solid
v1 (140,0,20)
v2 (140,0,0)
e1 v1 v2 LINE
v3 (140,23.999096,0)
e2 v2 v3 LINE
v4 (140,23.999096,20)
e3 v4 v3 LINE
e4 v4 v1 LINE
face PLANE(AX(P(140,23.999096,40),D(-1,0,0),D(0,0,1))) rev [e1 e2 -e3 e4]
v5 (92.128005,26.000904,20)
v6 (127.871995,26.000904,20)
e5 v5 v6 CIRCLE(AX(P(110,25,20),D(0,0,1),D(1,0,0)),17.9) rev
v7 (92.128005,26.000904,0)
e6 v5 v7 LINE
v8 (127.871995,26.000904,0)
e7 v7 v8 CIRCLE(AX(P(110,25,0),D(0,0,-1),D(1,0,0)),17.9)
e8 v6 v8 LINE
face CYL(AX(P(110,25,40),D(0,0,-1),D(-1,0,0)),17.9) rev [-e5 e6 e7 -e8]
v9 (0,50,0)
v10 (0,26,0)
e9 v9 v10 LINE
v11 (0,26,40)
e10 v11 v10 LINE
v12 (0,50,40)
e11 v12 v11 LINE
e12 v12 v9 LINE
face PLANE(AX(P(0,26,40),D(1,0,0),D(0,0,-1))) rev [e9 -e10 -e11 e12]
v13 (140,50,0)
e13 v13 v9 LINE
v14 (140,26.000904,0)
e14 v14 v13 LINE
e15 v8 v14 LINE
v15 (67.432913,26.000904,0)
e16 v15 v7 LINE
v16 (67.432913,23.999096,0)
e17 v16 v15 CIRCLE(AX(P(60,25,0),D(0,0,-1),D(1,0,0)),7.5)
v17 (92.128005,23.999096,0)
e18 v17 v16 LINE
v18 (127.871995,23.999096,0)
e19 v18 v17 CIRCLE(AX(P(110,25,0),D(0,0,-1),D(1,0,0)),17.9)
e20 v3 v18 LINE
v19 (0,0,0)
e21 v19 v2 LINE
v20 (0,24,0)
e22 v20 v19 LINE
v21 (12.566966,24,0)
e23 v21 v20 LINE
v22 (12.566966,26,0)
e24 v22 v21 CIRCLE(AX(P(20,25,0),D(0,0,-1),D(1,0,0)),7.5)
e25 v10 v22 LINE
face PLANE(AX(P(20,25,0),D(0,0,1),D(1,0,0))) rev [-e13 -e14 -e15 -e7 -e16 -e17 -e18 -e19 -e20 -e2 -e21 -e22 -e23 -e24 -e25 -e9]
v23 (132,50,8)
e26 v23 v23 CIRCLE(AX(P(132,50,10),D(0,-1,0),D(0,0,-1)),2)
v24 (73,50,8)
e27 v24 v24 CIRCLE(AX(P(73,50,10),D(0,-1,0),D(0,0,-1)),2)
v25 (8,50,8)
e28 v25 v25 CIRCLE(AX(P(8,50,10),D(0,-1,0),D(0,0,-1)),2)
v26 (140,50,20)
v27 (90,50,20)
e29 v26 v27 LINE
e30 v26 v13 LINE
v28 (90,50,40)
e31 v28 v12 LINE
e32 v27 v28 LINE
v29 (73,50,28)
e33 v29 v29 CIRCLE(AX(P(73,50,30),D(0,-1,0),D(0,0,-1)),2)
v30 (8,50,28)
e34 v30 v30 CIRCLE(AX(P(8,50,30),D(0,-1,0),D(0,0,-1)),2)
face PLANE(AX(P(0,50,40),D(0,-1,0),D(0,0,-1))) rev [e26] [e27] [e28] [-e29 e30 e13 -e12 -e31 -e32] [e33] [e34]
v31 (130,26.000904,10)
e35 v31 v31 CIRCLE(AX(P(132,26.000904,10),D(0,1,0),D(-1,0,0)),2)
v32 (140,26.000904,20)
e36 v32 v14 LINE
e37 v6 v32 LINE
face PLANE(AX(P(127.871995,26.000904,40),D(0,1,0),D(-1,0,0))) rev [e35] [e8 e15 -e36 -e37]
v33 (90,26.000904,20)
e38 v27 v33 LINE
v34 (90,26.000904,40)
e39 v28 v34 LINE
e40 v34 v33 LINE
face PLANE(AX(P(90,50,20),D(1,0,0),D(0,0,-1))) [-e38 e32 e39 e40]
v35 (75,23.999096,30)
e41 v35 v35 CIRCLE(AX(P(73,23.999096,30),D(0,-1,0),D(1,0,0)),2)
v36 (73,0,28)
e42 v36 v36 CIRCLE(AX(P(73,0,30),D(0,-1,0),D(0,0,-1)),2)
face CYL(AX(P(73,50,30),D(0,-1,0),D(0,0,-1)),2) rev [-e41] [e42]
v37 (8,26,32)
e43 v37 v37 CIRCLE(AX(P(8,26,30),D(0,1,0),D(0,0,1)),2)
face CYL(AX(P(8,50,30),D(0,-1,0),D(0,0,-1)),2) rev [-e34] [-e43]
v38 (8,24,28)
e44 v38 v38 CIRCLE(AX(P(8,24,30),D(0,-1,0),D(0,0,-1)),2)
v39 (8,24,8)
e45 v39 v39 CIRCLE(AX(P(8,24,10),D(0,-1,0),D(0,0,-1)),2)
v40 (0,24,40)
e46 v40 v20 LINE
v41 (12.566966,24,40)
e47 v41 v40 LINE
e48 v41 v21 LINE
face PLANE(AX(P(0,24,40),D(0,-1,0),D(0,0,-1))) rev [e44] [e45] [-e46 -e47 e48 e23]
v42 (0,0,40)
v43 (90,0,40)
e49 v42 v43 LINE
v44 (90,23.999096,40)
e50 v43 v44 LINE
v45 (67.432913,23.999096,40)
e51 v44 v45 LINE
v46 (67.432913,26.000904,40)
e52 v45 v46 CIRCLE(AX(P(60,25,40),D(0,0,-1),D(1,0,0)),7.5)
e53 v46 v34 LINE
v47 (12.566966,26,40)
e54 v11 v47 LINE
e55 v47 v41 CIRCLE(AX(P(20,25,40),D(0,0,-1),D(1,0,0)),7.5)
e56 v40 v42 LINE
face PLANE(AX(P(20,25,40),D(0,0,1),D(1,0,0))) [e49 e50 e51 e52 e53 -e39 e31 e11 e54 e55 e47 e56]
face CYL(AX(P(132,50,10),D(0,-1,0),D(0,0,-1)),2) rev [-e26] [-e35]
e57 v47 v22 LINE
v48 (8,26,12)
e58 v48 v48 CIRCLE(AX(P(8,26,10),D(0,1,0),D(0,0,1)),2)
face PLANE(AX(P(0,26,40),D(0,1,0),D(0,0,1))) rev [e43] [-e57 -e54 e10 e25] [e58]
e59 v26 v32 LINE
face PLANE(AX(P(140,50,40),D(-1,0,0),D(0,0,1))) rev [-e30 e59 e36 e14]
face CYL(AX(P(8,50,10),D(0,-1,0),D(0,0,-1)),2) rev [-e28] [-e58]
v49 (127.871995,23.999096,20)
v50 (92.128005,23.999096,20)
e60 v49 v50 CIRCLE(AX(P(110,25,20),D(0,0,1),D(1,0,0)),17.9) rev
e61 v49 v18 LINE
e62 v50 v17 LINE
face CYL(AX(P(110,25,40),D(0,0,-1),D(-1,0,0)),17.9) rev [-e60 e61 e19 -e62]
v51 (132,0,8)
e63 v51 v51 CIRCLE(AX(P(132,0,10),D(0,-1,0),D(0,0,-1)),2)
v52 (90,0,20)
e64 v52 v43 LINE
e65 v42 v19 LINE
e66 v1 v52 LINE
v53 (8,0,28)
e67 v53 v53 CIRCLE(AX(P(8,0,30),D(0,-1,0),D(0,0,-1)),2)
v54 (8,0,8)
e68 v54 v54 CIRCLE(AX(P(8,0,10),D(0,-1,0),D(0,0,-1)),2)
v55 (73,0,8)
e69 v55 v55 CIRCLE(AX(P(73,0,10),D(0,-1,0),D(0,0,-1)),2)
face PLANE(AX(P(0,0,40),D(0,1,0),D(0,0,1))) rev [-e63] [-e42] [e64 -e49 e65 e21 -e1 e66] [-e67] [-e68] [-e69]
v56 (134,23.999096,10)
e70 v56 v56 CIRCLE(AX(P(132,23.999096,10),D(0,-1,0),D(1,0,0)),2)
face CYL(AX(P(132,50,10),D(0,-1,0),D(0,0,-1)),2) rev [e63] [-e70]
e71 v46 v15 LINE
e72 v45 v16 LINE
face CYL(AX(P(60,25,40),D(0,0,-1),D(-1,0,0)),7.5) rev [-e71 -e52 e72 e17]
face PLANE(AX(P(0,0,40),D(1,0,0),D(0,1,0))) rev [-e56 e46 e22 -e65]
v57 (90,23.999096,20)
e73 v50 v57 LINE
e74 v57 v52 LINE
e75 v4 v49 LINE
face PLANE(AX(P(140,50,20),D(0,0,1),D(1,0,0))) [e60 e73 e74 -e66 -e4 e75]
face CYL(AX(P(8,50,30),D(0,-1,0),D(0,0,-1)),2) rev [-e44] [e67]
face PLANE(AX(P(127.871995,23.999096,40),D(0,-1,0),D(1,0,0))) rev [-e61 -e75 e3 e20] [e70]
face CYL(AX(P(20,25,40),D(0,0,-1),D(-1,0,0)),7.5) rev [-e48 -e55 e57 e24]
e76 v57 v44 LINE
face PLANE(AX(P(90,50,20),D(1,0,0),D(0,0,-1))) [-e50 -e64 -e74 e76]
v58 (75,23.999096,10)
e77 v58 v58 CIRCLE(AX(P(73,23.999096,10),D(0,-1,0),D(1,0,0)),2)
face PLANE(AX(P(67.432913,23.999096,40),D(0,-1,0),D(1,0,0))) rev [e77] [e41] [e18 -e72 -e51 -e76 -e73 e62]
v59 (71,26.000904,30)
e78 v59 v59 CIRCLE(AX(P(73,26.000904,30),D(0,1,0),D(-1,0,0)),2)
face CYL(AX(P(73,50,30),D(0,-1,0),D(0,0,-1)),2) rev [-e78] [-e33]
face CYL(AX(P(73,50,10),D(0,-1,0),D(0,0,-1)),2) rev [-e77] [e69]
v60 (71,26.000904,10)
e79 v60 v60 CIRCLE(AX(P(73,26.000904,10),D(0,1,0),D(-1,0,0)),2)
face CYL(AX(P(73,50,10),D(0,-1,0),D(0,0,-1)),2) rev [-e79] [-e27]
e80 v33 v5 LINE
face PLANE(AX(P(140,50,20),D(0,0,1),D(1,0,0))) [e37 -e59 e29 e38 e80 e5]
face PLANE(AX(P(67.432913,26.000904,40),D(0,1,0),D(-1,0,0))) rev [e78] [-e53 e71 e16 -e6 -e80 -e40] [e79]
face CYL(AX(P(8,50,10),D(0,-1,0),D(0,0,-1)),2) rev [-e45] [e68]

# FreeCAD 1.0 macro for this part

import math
import FreeCAD as App
import Part
import Sketcher
from FreeCAD import Vector

doc = App.newDocument("Part")
body = doc.addObject("PartDesign::Body", "Body")

# Sketch on XY plane
sketch1 = body.newObject("Sketcher::SketchObject", "Sketch")
sketch1.AttachmentSupport = (doc.getObject("XY_Plane"), [""])
sketch1.MapMode = "FlatFace"
sketch1.addGeometry([
    Part.LineSegment(Vector(67.4, 26, 0), Vector(92.1, 26, 0)),  # 0
    Part.ArcOfCircle(Part.Circle(Vector(110, 25, 0), Vector(0, 0, 1), 17.9), math.radians(3), math.radians(177)),  # 1
    Part.LineSegment(Vector(127.9, 26, 0), Vector(140, 26, 0)),  # 2
    Part.LineSegment(Vector(140, 26, 0), Vector(140, 50, 0)),  # 3
    Part.LineSegment(Vector(140, 50, 0), Vector(0, 50, 0)),  # 4
    Part.LineSegment(Vector(0, 50, 0), Vector(0, 26, 0)),  # 5
    Part.LineSegment(Vector(0, 26, 0), Vector(12.6, 26, 0)),  # 6
    Part.ArcOfCircle(Part.Circle(Vector(20, 25, 0), Vector(0, 0, 1), 7.5), math.radians(-172), math.radians(172)),  # 7
    Part.LineSegment(Vector(12.6, 24, 0), Vector(0, 24, 0)),  # 8
    Part.LineSegment(Vector(0, 24, 0), Vector(0, 0, 0)),  # 9
    Part.LineSegment(Vector(0, 0, 0), Vector(140, 0, 0)),  # 10
    Part.LineSegment(Vector(140, 0, 0), Vector(140, 24, 0)),  # 11
    Part.LineSegment(Vector(140, 24, 0), Vector(127.9, 24, 0)),  # 12
    Part.ArcOfCircle(Part.Circle(Vector(110, 25, 0), Vector(0, 0, 1), 17.9), math.radians(-177), math.radians(-3)),  # 13
    Part.LineSegment(Vector(92.1, 24, 0), Vector(67.4, 24, 0)),  # 14
    Part.ArcOfCircle(Part.Circle(Vector(60, 25, 0), Vector(0, 0, 1), 7.5), math.radians(8), math.radians(352)),  # 15
], False)
sketch1.addConstraint([
    Sketcher.Constraint("Coincident", 0, 2, 1, 2),
    Sketcher.Constraint("Coincident", 1, 1, 2, 1),
    Sketcher.Constraint("Coincident", 2, 2, 3, 1),
    Sketcher.Constraint("Coincident", 3, 2, 4, 1),
    Sketcher.Constraint("Coincident", 4, 2, 5, 1),
    Sketcher.Constraint("Coincident", 5, 2, 6, 1),
    Sketcher.Constraint("Coincident", 6, 2, 7, 2),
    Sketcher.Constraint("Coincident", 7, 1, 8, 1),
    Sketcher.Constraint("Coincident", 8, 2, 9, 1),
    Sketcher.Constraint("Coincident", 9, 2, 10, 1),
    Sketcher.Constraint("Coincident", 10, 2, 11, 1),
    Sketcher.Constraint("Coincident", 11, 2, 12, 1),
    Sketcher.Constraint("Coincident", 12, 2, 13, 2),
    Sketcher.Constraint("Coincident", 13, 1, 14, 1),
    Sketcher.Constraint("Coincident", 14, 2, 15, 2),
    Sketcher.Constraint("Coincident", 15, 1, 0, 1),
    Sketcher.Constraint("Horizontal", 0),
    Sketcher.Constraint("Horizontal", 2),
    Sketcher.Constraint("Vertical", 3),
    Sketcher.Constraint("Horizontal", 4),
    Sketcher.Constraint("Vertical", 5),
    Sketcher.Constraint("Horizontal", 6),
    Sketcher.Constraint("Horizontal", 8),
    Sketcher.Constraint("Vertical", 9),
    Sketcher.Constraint("Horizontal", 10),
    Sketcher.Constraint("Vertical", 11),
    Sketcher.Constraint("Horizontal", 12),
    Sketcher.Constraint("Horizontal", 14),
    Sketcher.Constraint("Coincident", 9, 2, -1, 1),
    Sketcher.Constraint("Coincident", 13, 3, 1, 3),
    Sketcher.Constraint("Equal", 1, 13),
    Sketcher.Constraint("Equal", 7, 15),
    Sketcher.Constraint("PointOnObject", 4, 2, -2),
    Sketcher.Constraint("Horizontal", 1, 3, 7, 3),
    Sketcher.Constraint("Horizontal", 13, 3, 15, 3),
    Sketcher.Constraint("Horizontal", 0, 2, 1, 1),
    Sketcher.Constraint("Horizontal", 12, 2, 13, 1),
    Sketcher.Constraint("Vertical", 6, 2, 7, 1),
    Sketcher.Constraint("Vertical", 3, 2, 10, 2),
    Sketcher.Constraint("Vertical", 1, 1, 12, 2),
    Sketcher.Constraint("Equal", 5, 9),
    Sketcher.Constraint("Radius", 1, 17.9),
    Sketcher.Constraint("Radius", 7, 7.5),
    Sketcher.Constraint("DistanceX", 4, 2, 4, 1, 140.0),
    Sketcher.Constraint("DistanceY", 5, 2, 5, 1, 24.0),
    Sketcher.Constraint("DistanceX", -1, 1, 1, 3, 110.0),
    Sketcher.Constraint("DistanceY", -1, 1, 1, 3, 25.0),
    Sketcher.Constraint("DistanceX", -1, 1, 7, 3, 20.0),
    Sketcher.Constraint("DistanceX", -1, 1, 15, 3, 60.0),
    Sketcher.Constraint("DistanceX", 0, 1, 0, 2, 24.695093),
])
pad1 = body.newObject("PartDesign::Pad", "Pad")
pad1.Profile = sketch1
pad1.Length = 40

# Sketch on XZ plane
sketch2 = body.newObject("Sketcher::SketchObject", "Sketch001")
sketch2.AttachmentSupport = (doc.getObject("XZ_Plane"), [""])
sketch2.MapMode = "FlatFace"
sketch2.addGeometry([
    Part.Circle(Vector(8, 30, 0), Vector(0, 0, 1), 2),  # 0
    Part.Circle(Vector(8, 10, 0), Vector(0, 0, 1), 2),  # 1
    Part.Circle(Vector(132, 10, 0), Vector(0, 0, 1), 2),  # 2
    Part.Circle(Vector(73, 30, 0), Vector(0, 0, 1), 2),  # 3
    Part.Circle(Vector(73, 10, 0), Vector(0, 0, 1), 2),  # 4
    Part.LineSegment(Vector(90, 40, 0), Vector(90, 20, 0)),  # 5
    Part.LineSegment(Vector(90, 20, 0), Vector(140, 20, 0)),  # 6
    Part.LineSegment(Vector(140, 20, 0), Vector(140, 40, 0)),  # 7
    Part.LineSegment(Vector(140, 40, 0), Vector(90, 40, 0)),  # 8
], False)
sketch2.addConstraint([
    Sketcher.Constraint("Coincident", 5, 2, 6, 1),
    Sketcher.Constraint("Coincident", 6, 2, 7, 1),
    Sketcher.Constraint("Coincident", 7, 2, 8, 1),
    Sketcher.Constraint("Coincident", 8, 2, 5, 1),
    Sketcher.Constraint("Vertical", 5),
    Sketcher.Constraint("Horizontal", 6),
    Sketcher.Constraint("Vertical", 7),
    Sketcher.Constraint("Horizontal", 8),
    Sketcher.Constraint("Equal", 0, 1),
    Sketcher.Constraint("Equal", 1, 2),
    Sketcher.Constraint("Equal", 2, 3),
    Sketcher.Constraint("Equal", 3, 4),
    Sketcher.Constraint("Horizontal", 1, 3, 2, 3),
    Sketcher.Constraint("Horizontal", 0, 3, 3, 3),
    Sketcher.Constraint("Horizontal", 2, 3, 4, 3),
    Sketcher.Constraint("Vertical", 0, 3, 1, 3),
    Sketcher.Constraint("Vertical", 3, 3, 4, 3),
    Sketcher.Constraint("Diameter", 0, 4.0),
    Sketcher.Constraint("DistanceX", 6, 1, 6, 2, 50.0),
    Sketcher.Constraint("DistanceY", 5, 2, 5, 1, 20.0),
    Sketcher.Constraint("DistanceX", -1, 1, 0, 3, 8.0),
    Sketcher.Constraint("DistanceY", -1, 1, 0, 3, 30.0),
    Sketcher.Constraint("DistanceY", -1, 1, 1, 3, 10.0),
    Sketcher.Constraint("DistanceX", -1, 1, 2, 3, 132.0),
    Sketcher.Constraint("DistanceX", -1, 1, 3, 3, 73.0),
    Sketcher.Constraint("DistanceX", -1, 1, 5, 2, 90.0),
    Sketcher.Constraint("DistanceY", -1, 1, 5, 2, 20.0),
])
pocket1 = body.newObject("PartDesign::Pocket", "Pocket")
pocket1.Profile = sketch2
pocket1.Length = 50

doc.recompute()
